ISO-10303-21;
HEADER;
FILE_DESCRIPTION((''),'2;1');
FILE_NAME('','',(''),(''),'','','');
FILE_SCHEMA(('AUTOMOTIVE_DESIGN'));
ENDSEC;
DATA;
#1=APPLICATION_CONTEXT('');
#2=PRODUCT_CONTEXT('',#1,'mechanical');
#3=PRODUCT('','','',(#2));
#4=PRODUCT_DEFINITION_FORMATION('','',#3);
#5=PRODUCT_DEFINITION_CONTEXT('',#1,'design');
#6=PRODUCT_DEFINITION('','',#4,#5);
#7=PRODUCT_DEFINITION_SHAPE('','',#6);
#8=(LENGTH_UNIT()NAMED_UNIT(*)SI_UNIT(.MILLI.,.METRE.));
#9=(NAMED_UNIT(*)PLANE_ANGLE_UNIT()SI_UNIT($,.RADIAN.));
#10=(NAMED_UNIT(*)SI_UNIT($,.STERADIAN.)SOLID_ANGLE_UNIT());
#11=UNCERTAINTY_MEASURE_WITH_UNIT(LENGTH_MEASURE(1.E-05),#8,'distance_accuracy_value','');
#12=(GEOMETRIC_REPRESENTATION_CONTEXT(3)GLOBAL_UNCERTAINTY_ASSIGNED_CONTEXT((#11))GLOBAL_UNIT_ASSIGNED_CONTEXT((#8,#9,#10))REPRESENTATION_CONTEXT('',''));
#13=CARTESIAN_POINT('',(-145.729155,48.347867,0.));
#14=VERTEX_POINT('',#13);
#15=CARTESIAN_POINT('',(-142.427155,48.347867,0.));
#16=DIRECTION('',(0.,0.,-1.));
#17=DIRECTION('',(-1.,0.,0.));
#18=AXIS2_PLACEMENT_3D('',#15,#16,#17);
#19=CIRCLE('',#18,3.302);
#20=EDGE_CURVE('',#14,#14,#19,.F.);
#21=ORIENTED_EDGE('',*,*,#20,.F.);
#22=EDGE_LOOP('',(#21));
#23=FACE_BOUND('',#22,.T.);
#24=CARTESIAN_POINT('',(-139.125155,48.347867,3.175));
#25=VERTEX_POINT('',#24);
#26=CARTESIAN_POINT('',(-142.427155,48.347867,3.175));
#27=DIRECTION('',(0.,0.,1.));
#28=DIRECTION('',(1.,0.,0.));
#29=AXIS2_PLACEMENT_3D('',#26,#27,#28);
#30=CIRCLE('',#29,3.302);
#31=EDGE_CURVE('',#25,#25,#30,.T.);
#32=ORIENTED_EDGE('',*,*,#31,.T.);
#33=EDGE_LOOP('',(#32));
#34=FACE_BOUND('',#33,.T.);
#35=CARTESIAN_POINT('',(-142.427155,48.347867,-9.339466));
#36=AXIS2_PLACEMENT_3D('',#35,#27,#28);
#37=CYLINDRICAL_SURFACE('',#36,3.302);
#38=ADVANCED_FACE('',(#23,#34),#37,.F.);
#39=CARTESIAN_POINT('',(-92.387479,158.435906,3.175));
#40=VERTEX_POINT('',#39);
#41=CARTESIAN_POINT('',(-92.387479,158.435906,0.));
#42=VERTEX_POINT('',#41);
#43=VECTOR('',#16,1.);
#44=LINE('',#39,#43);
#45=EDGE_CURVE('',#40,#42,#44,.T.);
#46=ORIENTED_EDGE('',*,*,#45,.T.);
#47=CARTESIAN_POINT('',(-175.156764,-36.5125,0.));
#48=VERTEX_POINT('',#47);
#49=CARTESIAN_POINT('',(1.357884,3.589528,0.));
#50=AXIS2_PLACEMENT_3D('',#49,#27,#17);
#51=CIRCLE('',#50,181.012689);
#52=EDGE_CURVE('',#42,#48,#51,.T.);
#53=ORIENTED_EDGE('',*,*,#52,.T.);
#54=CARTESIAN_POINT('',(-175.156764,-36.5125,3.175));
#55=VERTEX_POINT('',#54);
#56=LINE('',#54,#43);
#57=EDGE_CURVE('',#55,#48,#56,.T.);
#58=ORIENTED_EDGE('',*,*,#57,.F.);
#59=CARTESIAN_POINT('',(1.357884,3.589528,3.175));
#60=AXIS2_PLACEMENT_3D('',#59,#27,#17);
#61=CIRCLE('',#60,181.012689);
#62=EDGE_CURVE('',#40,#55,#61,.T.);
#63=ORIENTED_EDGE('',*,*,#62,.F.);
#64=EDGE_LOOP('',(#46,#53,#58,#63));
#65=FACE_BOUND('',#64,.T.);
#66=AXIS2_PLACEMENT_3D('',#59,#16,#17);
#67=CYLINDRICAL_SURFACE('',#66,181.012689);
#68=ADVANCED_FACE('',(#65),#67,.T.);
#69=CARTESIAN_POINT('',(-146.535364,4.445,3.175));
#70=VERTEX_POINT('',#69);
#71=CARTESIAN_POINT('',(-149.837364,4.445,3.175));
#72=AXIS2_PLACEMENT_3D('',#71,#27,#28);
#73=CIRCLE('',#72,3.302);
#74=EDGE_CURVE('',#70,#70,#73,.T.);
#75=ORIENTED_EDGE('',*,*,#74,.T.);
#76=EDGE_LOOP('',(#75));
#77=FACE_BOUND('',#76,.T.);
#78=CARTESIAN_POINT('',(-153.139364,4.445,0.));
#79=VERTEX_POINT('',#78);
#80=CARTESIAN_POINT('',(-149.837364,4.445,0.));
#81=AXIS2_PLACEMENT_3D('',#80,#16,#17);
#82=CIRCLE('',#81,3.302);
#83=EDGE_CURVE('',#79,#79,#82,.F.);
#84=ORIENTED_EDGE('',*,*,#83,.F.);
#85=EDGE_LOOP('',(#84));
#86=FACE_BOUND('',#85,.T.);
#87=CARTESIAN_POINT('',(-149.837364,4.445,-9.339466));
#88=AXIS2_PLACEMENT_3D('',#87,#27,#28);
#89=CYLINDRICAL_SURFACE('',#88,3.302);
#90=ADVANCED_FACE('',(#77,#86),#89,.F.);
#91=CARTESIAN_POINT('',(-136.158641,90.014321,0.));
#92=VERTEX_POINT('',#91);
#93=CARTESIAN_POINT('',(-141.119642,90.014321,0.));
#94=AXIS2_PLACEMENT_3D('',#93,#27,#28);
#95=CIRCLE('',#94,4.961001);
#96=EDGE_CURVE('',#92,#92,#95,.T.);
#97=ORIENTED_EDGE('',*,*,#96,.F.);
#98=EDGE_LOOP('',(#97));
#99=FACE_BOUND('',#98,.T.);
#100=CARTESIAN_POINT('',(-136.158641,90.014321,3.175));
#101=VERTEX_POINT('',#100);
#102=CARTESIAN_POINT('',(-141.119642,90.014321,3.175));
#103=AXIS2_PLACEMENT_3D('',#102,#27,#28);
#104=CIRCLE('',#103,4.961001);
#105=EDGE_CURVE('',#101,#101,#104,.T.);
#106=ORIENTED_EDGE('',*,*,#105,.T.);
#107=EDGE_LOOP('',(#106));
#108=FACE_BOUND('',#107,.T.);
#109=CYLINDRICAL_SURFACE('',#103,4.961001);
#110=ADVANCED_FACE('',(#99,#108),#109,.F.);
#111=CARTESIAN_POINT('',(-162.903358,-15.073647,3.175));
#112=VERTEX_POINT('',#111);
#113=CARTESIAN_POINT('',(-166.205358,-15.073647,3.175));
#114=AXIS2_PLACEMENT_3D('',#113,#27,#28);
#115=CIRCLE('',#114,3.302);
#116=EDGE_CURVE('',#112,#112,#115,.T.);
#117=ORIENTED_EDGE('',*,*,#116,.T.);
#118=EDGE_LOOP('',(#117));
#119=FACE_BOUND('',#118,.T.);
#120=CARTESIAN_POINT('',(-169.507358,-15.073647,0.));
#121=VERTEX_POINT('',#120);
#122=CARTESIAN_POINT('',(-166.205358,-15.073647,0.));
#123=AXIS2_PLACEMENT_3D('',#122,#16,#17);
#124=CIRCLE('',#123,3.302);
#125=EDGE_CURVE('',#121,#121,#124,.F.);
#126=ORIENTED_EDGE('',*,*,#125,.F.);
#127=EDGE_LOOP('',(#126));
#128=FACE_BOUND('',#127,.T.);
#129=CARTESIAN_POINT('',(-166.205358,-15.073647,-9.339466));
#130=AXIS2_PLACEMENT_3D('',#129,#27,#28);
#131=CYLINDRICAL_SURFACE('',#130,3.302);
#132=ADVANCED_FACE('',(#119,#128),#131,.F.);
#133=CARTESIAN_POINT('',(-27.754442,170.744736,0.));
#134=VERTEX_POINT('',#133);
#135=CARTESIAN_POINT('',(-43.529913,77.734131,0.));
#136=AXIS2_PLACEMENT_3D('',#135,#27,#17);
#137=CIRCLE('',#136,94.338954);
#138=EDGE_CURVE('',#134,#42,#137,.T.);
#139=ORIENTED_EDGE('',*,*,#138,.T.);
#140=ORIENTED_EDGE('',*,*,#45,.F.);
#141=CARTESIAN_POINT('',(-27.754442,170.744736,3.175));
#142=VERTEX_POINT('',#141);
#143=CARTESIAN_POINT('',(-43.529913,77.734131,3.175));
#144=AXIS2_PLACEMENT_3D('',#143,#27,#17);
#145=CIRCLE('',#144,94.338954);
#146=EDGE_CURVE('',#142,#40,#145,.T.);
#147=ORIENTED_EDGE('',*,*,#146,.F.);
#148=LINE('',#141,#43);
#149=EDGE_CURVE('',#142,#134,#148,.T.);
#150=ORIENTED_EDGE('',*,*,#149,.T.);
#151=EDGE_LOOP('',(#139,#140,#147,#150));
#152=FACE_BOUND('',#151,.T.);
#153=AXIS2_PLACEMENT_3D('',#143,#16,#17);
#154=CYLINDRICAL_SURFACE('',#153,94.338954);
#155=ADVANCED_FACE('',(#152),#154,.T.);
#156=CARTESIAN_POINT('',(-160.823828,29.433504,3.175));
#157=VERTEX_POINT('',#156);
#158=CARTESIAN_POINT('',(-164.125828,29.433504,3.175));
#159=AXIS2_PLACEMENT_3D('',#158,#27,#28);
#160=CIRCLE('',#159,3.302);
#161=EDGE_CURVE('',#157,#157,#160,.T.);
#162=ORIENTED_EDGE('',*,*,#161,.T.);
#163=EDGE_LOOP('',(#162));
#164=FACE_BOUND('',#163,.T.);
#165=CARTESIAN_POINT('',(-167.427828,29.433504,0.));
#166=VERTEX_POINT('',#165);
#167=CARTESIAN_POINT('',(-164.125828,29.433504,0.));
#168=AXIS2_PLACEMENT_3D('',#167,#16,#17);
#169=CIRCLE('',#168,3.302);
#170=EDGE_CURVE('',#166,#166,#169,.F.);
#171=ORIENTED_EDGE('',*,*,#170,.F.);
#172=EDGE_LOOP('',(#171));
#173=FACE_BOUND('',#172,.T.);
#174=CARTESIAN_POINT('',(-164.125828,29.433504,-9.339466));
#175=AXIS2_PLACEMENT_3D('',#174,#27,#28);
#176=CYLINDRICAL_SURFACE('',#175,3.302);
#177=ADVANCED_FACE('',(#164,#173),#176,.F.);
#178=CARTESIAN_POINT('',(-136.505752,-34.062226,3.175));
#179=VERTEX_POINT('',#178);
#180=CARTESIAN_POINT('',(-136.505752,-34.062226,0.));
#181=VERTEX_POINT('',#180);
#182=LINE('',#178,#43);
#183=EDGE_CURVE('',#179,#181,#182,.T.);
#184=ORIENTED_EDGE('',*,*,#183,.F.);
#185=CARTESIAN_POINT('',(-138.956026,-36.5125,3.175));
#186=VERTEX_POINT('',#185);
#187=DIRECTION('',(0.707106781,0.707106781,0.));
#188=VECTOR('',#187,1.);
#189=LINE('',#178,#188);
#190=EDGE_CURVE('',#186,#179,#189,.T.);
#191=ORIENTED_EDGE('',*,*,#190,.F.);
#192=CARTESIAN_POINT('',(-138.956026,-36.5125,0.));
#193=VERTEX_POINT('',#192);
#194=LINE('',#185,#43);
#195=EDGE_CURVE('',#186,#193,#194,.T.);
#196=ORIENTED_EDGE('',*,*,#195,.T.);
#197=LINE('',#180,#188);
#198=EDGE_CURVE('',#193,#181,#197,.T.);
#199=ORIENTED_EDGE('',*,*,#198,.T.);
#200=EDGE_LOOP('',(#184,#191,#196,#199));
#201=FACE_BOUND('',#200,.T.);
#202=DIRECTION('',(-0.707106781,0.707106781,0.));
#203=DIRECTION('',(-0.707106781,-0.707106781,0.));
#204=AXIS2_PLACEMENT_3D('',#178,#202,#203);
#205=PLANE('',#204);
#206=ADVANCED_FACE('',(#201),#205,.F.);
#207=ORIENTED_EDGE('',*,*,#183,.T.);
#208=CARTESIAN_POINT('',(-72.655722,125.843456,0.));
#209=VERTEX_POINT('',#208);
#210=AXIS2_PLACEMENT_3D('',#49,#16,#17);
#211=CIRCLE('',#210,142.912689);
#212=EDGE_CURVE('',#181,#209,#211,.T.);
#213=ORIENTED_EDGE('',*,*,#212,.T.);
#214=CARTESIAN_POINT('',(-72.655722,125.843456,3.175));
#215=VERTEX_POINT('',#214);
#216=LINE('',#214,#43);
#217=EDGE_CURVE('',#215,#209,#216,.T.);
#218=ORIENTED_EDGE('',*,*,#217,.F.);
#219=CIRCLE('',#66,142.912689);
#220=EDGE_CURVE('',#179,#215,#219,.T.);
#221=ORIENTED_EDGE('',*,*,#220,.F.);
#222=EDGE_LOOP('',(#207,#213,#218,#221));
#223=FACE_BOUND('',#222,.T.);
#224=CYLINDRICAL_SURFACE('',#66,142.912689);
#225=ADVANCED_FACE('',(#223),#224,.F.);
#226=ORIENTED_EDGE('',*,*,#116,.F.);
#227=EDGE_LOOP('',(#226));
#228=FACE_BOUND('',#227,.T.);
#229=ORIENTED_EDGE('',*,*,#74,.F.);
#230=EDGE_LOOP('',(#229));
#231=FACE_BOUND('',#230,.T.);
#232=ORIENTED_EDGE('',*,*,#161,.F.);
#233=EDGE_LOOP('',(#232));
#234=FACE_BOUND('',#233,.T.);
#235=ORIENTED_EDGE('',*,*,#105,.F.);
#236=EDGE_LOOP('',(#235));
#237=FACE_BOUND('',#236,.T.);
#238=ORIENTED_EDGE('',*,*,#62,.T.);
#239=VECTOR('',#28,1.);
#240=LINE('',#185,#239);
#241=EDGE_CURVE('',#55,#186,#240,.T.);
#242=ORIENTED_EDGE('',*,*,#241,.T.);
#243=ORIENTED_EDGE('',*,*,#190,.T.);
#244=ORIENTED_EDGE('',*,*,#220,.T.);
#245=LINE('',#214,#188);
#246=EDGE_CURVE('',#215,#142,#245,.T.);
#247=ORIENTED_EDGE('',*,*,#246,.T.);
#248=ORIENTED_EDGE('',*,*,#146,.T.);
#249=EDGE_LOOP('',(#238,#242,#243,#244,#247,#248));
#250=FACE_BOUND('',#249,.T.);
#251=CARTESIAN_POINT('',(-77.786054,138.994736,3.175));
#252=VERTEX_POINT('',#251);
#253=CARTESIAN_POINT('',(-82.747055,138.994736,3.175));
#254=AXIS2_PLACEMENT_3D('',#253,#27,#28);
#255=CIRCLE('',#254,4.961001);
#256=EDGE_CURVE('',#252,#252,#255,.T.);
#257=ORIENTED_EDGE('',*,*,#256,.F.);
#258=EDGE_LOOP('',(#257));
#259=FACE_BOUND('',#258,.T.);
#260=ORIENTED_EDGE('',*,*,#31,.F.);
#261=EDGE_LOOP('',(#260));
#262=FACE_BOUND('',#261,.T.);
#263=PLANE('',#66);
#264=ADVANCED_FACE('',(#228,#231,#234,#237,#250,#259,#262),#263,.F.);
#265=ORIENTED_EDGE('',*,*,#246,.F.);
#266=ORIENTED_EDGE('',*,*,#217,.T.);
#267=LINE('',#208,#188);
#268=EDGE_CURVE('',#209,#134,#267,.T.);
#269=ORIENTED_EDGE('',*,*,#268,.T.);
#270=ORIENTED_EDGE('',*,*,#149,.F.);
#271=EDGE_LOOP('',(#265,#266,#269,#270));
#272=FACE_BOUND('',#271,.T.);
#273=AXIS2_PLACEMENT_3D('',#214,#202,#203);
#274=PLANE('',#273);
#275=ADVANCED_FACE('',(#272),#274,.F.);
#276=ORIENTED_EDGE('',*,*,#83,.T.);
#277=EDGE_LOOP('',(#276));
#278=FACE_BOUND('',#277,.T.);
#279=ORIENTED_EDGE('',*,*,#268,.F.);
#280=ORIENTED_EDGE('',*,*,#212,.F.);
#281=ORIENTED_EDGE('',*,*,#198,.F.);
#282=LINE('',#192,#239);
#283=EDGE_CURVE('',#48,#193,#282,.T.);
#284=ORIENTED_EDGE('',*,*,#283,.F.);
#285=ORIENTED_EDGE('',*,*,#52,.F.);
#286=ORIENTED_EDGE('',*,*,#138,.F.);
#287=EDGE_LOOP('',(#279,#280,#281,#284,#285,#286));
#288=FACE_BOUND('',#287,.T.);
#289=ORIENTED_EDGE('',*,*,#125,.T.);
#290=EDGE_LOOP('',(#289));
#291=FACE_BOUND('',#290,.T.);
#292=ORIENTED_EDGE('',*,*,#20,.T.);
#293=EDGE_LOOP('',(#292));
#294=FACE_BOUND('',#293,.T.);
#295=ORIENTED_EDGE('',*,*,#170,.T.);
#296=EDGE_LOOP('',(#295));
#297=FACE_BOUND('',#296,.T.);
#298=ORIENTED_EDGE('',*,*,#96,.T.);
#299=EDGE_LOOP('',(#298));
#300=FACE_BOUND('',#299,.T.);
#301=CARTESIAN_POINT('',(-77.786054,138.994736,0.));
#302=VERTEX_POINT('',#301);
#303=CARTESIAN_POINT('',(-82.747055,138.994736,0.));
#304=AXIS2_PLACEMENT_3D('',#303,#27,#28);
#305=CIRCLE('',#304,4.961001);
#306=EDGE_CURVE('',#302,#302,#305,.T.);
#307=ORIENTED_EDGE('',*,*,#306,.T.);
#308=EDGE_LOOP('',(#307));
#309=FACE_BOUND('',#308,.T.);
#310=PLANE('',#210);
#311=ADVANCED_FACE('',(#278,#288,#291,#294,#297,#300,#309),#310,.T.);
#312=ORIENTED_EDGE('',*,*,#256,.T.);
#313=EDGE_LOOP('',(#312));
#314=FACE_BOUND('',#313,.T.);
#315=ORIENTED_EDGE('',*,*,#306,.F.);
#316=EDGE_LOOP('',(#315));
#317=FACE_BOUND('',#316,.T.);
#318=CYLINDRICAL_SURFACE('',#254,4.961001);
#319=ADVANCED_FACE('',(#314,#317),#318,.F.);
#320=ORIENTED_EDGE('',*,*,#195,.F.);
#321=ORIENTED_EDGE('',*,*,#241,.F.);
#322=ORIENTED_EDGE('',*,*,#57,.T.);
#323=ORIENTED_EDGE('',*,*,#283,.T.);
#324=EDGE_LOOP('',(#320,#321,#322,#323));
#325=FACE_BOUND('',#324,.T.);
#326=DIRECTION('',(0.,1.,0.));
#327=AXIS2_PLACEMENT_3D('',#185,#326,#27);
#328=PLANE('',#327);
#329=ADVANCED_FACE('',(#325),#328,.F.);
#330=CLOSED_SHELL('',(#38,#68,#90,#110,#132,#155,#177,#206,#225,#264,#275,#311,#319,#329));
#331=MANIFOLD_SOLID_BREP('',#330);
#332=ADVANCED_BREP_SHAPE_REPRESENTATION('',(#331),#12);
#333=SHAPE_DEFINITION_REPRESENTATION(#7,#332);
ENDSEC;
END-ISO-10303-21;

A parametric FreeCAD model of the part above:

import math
import FreeCAD as App
import Part
import Sketcher

V = App.Vector
Q = App.Units.Quantity

doc = App.newDocument("Part")
body = doc.addObject("PartDesign::Body", "Body")

# Sketch on XY plane
sketch1 = body.newObject("Sketcher::SketchObject", "Sketch")
sketch1.AttachmentSupport = (doc.getObject("XY_Plane"), [""])
sketch1.MapMode = "FlatFace"
sketch1.addGeometry([
    Part.LineSegment(V(-175.2, -36.5, 0), V(-139, -36.5, 0)),  # 0
    Part.LineSegment(V(-139, -36.5, 0), V(-136.5, -34.1, 0)),  # 1
    Part.ArcOfCircle(Part.Circle(V(1.4, 3.6, 0), V(0, 0, 1), 142.9), math.radians(121), math.radians(195)),  # 2
    Part.LineSegment(V(-72.7, 125.8, 0), V(-27.8, 170.7, 0)),  # 3
    Part.ArcOfCircle(Part.Circle(V(-43.5, 77.7, 0), V(0, 0, 1), 94.3), math.radians(80), math.radians(121)),  # 4
    Part.ArcOfCircle(Part.Circle(V(1.4, 3.6, 0), V(0, 0, 1), 181), math.radians(121), math.radians(193)),  # 5
], False)
sketch1.addConstraint([
    Sketcher.Constraint("Coincident", 0, 2, 1, 1),
    Sketcher.Constraint("Coincident", 1, 2, 2, 2),
    Sketcher.Constraint("Coincident", 2, 1, 3, 1),
    Sketcher.Constraint("Coincident", 3, 2, 4, 1),
    Sketcher.Constraint("Tangent", 4, 2, 5, 1),
    Sketcher.Constraint("Coincident", 5, 2, 0, 1),
    Sketcher.Constraint("Horizontal", 0),
    Sketcher.Constraint("Coincident", 5, 3, 2, 3),
    Sketcher.Constraint("Parallel", 1, 3),
    Sketcher.Constraint("Angle", 1, Q("45 deg")),
    Sketcher.Constraint("Distance", 3, Q("2.5 in")),
    Sketcher.Constraint("DistanceY", 0, 2, -1, 1, Q("1.4375 in")),
    Sketcher.Constraint("Radius", 2, Q("142.912689 mm")),
    Sketcher.Constraint("Radius", 5, Q("181.012689 mm")),
    Sketcher.Constraint("Radius", 4, Q("94.338954 mm")),
    Sketcher.Constraint("DistanceX", 0, 1, 0, 2, Q("36.200738 mm")),
    Sketcher.Constraint("Distance", 1, Q("3.465211 mm")),
    Sketcher.Constraint("DistanceY", -1, 1, 4, 3, Q("77.734131 mm")),
    Sketcher.Constraint("DistanceX", 3, 2, -1, 1, Q("27.754442 mm")),
])
pad1 = body.newObject("PartDesign::Pad", "Pad")
pad1.Profile = sketch1
pad1.Length = Q("0.125 in")

# Sketch on XY plane
sketch2 = body.newObject("Sketcher::SketchObject", "Sketch001")
sketch2.AttachmentSupport = (doc.getObject("XY_Plane"), [""])
sketch2.MapMode = "FlatFace"
sketch2.AttachmentOffset = App.Placement(V(0, 0, 0.125 * 25.4), App.Rotation())
sketch2.addGeometry([
    Part.Circle(V(-142.4, 48.3, 0), V(0, 0, 1), 3.3),
    Part.Circle(V(-149.8, 4.4, 0), V(0, 0, 1), 3.3),
], False)
sketch2.addConstraint([
    Sketcher.Constraint("Equal", 0, 1),
    Sketcher.Constraint("Diameter", 0, Q("0.26 in")),
    Sketcher.Constraint("DistanceY", -1, 1, 1, 3, Q("0.175 in")),
    Sketcher.Constraint("DistanceX", 1, 3, 0, 3, Q("7.410209 mm")),
    Sketcher.Constraint("DistanceX", 0, 3, -1, 1, Q("142.427155 mm")),
    Sketcher.Constraint("DistanceY", -1, 1, 0, 3, Q("48.347867 mm")),
])
pocket1 = body.newObject("PartDesign::Pocket", "Pocket")
pocket1.Profile = sketch2
pocket1.Length = Q("0.125 in")

# Sketch on XY plane
sketch3 = body.newObject("Sketcher::SketchObject", "Sketch002")
sketch3.AttachmentSupport = (doc.getObject("XY_Plane"), [""])
sketch3.MapMode = "FlatFace"
sketch3.AttachmentOffset = App.Placement(V(0, 0, 0.125 * 25.4), App.Rotation())
sketch3.addGeometry([
    Part.Circle(V(-164.1, 29.4, 0), V(0, 0, 1), 3.3),
    Part.Circle(V(-166.2, -15.1, 0), V(0, 0, 1), 3.3),
], False)
sketch3.addConstraint([
    Sketcher.Constraint("Equal", 0, 1),
    Sketcher.Constraint("Diameter", 0, Q("0.26 in")),
    Sketcher.Constraint("DistanceX", 1, 3, 0, 3, Q("2.07953 mm")),
    Sketcher.Constraint("DistanceY", 1, 3, 0, 3, Q("44.507151 mm")),
    Sketcher.Constraint("DistanceX", 0, 3, -1, 1, Q("164.125828 mm")),
    Sketcher.Constraint("DistanceY", -1, 1, 0, 3, Q("29.433504 mm")),
])
pocket2 = body.newObject("PartDesign::Pocket", "Pocket001")
pocket2.Profile = sketch3
pocket2.Length = Q("0.125 in")

# Sketch on XY plane
sketch4 = body.newObject("Sketcher::SketchObject", "Sketch003")
sketch4.AttachmentSupport = (doc.getObject("XY_Plane"), [""])
sketch4.MapMode = "FlatFace"
sketch4.AttachmentOffset = App.Placement(V(0, 0, 0.125 * 25.4), App.Rotation())
sketch4.addGeometry([
    Part.Circle(V(-82.7, 139, 0), V(0, 0, 1), 5),
    Part.Circle(V(-141.1, 90, 0), V(0, 0, 1), 5),
], False)
sketch4.addConstraint([
    Sketcher.Constraint("Equal", 0, 1),
    Sketcher.Constraint("Diameter", 0, Q("9.922002 mm")),
    Sketcher.Constraint("DistanceX", 1, 3, -1, 1, Q("141.119642 mm")),
    Sketcher.Constraint("DistanceY", -1, 1, 1, 3, Q("90.014321 mm")),
    Sketcher.Constraint("DistanceX", 0, 3, -1, 1, Q("82.747055 mm")),
    Sketcher.Constraint("DistanceY", -1, 1, 0, 3, Q("138.994736 mm")),
])
doc.recompute()
hole = body.newObject("PartDesign::Hole", "Hole")
hole.Profile = sketch4
hole.ThreadType = "None"
hole.Diameter = 9.922002
hole.DepthType = "ThroughAll"

doc.recompute()
